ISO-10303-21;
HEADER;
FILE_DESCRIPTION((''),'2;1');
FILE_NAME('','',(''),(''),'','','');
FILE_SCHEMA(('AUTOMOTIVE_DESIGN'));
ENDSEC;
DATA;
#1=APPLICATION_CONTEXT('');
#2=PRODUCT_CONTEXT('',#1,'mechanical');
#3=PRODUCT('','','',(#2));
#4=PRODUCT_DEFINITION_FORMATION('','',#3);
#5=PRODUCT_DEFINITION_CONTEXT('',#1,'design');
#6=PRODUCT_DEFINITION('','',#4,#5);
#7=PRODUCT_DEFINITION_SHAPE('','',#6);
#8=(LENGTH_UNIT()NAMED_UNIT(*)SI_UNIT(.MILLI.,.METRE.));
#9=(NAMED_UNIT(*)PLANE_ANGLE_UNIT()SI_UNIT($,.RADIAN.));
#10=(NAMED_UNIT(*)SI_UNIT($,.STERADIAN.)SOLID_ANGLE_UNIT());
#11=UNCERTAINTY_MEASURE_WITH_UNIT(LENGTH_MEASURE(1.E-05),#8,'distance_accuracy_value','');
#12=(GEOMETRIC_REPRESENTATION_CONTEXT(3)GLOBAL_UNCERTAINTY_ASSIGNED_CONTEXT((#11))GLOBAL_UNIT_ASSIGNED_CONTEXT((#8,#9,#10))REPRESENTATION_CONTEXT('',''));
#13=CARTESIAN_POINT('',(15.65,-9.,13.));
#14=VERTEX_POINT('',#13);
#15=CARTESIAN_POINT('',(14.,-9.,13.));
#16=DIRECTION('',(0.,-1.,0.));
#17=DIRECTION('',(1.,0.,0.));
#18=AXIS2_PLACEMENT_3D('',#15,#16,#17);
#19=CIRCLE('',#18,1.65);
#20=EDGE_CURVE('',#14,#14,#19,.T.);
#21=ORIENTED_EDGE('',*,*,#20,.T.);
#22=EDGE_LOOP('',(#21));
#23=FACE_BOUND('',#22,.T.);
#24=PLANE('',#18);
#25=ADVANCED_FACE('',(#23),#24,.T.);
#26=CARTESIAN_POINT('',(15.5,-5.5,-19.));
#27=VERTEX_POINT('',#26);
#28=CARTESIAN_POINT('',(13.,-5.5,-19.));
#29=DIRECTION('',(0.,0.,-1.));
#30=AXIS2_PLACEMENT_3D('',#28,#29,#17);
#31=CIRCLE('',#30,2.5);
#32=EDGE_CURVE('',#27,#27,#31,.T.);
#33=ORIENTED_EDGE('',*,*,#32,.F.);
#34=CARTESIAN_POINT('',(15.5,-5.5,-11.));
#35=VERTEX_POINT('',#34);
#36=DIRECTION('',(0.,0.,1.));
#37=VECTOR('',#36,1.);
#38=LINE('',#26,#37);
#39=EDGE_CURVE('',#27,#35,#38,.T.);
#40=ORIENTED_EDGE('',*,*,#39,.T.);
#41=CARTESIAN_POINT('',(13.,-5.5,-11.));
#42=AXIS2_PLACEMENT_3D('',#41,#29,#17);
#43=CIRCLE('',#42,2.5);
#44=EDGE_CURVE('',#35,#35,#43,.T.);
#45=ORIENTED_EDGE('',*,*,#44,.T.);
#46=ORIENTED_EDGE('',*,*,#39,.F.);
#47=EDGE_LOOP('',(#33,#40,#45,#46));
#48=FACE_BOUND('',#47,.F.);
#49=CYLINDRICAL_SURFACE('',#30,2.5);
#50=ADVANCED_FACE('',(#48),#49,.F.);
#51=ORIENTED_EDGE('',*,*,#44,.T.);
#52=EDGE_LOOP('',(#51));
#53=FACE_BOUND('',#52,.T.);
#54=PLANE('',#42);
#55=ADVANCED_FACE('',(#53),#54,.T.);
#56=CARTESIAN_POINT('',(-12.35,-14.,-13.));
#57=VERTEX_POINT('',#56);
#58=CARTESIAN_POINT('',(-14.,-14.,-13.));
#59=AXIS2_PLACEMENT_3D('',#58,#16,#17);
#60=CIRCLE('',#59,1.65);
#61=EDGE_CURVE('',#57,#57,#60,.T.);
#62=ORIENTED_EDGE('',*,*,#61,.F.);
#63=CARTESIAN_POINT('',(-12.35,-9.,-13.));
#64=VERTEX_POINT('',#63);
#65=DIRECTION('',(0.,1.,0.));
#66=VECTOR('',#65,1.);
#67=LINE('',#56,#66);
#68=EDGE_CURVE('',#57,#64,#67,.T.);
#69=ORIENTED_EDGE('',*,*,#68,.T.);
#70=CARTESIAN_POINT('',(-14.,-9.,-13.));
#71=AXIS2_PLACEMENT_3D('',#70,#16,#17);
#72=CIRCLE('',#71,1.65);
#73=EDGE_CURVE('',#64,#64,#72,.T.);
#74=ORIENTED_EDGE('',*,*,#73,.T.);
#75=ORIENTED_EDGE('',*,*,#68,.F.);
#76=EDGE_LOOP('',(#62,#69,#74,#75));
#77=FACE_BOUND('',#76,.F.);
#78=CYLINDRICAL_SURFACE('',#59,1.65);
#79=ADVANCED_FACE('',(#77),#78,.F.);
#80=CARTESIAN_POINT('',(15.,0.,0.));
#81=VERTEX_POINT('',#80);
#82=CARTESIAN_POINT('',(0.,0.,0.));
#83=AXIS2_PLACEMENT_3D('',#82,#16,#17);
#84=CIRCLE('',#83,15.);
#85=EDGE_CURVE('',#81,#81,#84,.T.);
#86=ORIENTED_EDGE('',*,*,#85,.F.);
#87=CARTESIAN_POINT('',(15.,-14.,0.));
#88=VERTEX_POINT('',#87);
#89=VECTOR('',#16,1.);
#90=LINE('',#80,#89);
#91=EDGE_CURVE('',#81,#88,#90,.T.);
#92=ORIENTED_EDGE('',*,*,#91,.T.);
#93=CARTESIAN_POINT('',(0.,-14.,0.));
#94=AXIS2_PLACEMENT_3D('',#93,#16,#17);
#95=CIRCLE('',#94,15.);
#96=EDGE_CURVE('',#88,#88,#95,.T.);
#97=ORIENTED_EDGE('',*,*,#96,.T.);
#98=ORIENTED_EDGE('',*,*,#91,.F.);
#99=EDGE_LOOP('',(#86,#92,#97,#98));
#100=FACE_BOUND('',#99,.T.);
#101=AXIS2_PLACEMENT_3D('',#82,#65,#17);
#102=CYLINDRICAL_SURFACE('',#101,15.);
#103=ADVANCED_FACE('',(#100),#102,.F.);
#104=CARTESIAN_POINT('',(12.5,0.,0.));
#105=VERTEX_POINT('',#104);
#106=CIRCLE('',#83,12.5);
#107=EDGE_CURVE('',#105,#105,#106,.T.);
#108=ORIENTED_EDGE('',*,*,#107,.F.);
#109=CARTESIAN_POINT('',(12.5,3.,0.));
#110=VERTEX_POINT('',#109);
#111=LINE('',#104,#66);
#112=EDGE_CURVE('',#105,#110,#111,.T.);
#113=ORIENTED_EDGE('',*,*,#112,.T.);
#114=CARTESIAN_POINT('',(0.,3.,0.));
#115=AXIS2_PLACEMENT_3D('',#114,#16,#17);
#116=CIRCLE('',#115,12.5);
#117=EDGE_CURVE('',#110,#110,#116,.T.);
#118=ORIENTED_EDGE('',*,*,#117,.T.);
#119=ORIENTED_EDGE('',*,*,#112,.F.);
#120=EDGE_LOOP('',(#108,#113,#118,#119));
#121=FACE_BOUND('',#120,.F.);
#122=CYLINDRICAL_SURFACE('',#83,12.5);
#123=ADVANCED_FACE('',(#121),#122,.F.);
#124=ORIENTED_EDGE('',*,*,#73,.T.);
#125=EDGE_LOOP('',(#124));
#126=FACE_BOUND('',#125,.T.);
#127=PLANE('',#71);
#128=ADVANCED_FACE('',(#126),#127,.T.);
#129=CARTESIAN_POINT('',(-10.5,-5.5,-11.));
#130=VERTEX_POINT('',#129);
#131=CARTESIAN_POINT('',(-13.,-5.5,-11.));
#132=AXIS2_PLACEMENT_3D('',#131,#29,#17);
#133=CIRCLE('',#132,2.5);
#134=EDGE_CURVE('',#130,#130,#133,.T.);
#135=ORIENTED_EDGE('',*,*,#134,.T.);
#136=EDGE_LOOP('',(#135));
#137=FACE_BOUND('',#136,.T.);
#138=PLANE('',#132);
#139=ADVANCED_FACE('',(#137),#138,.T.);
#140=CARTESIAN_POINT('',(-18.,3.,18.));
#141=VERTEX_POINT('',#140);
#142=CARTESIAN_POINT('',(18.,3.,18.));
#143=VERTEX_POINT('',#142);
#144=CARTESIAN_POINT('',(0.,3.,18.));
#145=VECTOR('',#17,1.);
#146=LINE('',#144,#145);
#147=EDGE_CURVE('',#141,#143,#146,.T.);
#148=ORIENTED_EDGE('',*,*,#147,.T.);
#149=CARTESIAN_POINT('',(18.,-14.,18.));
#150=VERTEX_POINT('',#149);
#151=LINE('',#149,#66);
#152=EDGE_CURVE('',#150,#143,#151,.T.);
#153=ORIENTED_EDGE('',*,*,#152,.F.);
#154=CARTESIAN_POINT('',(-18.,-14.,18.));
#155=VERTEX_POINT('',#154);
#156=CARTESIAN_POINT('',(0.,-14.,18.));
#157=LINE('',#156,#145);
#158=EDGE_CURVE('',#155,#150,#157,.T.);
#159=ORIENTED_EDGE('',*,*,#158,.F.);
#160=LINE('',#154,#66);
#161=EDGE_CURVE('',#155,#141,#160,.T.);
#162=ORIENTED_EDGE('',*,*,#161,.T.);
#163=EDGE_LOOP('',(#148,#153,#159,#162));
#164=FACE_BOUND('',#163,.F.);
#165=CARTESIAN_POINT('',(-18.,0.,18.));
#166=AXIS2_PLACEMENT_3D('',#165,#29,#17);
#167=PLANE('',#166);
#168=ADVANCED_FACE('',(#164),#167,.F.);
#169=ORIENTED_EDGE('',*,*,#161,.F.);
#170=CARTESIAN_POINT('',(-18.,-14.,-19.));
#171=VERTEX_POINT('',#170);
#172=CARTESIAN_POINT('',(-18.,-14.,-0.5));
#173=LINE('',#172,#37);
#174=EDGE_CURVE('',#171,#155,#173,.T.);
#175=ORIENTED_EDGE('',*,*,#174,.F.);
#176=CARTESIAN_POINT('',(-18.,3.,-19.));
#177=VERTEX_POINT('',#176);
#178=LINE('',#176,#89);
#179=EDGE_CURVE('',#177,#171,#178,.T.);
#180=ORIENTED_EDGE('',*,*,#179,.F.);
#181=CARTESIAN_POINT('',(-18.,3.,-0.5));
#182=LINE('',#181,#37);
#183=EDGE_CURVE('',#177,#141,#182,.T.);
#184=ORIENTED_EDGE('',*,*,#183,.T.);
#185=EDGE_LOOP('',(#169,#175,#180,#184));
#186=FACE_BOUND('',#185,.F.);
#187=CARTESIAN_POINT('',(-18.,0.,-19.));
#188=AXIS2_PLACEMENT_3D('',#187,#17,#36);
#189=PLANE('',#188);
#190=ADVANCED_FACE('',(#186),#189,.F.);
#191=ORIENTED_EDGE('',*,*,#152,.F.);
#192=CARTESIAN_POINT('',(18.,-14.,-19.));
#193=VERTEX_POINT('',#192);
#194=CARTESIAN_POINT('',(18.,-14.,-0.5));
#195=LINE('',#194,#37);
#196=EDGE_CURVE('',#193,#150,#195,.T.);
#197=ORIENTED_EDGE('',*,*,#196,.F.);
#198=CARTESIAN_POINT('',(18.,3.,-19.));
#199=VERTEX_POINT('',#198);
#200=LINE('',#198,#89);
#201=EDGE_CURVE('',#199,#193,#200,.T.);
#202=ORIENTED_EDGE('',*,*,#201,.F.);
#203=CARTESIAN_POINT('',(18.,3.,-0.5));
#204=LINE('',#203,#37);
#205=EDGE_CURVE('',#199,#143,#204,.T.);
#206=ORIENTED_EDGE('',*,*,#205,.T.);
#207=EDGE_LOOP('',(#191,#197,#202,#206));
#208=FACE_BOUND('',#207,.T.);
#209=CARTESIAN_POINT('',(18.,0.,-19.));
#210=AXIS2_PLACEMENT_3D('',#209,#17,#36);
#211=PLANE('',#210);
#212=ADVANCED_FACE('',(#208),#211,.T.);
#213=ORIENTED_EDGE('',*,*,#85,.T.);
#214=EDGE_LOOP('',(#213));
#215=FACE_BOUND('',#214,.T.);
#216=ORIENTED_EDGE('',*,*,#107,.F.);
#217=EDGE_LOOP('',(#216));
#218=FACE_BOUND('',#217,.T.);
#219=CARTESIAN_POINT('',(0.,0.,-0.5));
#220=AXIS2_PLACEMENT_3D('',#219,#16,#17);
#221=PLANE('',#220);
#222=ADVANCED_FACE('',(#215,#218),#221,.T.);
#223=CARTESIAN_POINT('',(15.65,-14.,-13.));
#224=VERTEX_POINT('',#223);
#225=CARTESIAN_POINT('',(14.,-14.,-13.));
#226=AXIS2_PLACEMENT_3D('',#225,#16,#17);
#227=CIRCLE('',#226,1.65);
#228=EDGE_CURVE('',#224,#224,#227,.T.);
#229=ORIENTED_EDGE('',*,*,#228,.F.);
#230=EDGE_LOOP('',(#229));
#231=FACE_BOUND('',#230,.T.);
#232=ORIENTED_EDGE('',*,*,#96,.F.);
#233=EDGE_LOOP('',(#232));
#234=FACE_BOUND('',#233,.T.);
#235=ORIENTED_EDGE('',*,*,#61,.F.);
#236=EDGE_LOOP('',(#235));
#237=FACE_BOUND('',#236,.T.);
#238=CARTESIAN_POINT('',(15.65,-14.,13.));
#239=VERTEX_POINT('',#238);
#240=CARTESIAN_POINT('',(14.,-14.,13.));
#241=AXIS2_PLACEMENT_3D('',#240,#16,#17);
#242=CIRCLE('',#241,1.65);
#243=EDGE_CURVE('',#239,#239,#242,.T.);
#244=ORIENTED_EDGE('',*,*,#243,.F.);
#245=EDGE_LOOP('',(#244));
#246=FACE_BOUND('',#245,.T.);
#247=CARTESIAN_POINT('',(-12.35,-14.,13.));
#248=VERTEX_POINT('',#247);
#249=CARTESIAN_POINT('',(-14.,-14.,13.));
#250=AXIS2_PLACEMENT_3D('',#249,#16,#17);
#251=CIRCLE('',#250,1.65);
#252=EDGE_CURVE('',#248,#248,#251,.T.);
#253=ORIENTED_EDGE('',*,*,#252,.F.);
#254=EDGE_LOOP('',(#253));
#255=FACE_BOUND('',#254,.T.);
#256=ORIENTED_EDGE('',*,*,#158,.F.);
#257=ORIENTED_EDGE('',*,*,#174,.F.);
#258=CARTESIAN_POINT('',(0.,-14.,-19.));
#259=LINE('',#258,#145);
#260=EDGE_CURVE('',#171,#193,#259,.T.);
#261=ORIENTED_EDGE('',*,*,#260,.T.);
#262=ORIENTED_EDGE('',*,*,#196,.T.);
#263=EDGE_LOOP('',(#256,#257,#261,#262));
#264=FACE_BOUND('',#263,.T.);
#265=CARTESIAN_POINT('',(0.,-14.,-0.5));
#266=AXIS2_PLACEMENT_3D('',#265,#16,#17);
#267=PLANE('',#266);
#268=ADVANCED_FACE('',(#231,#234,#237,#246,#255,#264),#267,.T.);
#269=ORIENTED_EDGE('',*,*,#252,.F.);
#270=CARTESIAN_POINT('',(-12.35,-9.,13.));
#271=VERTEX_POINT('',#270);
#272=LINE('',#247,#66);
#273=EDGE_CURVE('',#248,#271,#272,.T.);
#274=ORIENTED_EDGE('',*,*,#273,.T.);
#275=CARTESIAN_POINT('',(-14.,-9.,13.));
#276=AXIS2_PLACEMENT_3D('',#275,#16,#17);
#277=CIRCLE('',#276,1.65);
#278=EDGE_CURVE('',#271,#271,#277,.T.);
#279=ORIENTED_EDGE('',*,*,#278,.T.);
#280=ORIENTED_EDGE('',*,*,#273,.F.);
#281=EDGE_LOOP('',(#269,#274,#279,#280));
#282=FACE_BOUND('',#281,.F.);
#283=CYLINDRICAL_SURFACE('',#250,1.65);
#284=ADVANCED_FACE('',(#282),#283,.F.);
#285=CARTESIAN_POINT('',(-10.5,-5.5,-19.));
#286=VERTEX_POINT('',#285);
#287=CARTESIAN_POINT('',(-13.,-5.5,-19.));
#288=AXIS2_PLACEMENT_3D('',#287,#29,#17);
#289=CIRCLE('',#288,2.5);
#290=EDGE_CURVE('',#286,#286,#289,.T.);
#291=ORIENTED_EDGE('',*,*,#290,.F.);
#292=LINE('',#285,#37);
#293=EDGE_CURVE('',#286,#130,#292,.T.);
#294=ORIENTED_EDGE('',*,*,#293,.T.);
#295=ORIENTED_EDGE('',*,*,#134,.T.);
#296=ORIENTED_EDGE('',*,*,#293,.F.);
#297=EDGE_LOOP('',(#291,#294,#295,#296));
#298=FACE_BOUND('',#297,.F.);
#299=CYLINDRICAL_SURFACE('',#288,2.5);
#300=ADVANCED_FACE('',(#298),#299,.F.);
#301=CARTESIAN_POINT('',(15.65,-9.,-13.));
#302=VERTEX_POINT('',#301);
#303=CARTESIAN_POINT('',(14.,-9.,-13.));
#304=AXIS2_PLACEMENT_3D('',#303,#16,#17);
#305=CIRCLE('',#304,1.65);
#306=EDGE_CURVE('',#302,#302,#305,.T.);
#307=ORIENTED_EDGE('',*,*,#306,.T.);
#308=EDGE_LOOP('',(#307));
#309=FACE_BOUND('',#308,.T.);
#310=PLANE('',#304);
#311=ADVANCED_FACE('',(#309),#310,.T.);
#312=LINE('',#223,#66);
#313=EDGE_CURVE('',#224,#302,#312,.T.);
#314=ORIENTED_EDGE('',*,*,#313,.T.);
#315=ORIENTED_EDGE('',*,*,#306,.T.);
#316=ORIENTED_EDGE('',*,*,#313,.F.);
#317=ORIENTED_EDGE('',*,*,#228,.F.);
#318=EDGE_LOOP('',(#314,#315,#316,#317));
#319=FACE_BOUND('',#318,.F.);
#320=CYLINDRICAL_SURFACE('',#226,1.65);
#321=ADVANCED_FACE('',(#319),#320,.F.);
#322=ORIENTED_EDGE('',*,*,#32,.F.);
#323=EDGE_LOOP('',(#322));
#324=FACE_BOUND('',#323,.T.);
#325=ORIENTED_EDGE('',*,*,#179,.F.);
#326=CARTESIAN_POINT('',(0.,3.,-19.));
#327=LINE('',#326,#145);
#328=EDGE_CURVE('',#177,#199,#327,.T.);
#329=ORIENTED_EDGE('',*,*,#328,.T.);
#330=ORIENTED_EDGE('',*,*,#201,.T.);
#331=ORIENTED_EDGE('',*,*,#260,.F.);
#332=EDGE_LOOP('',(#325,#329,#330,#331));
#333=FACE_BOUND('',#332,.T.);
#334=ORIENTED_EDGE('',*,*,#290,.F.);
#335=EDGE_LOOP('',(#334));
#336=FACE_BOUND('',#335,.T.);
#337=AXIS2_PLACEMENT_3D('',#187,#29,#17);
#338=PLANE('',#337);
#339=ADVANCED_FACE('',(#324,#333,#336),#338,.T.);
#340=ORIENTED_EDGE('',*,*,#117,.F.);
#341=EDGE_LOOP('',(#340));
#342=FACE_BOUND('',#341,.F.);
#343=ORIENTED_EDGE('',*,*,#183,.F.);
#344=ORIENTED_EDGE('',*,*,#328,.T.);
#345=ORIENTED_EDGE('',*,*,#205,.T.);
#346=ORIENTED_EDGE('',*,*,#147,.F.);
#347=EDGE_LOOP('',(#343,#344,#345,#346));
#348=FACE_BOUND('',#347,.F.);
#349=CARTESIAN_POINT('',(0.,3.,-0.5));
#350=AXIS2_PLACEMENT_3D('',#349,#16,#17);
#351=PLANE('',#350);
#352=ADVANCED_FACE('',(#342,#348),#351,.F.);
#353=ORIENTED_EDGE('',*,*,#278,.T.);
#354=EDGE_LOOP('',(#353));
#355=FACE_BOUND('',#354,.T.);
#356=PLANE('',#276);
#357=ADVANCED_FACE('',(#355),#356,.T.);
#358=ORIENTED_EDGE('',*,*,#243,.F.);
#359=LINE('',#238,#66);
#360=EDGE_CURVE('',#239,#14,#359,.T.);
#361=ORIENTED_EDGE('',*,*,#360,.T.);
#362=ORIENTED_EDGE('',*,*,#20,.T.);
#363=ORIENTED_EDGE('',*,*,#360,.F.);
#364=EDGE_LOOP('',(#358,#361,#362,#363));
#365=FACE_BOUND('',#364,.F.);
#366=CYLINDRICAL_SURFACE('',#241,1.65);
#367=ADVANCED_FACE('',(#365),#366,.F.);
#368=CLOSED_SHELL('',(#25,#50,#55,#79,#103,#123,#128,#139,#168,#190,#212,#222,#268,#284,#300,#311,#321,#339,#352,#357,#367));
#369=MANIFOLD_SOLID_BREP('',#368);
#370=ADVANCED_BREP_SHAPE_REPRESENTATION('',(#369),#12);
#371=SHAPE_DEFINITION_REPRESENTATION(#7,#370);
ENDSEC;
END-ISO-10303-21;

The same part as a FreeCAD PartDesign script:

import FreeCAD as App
import Part
import Sketcher


def add_polygon(sketch, points):
    """Adds a closed chain of lines whose ends are joined by coincident constraints."""
    first, n = sketch.GeometryCount, len(points)
    for a, b in zip(points, points[1:] + points[:1]):
        sketch.addGeometry(Part.LineSegment(App.Vector(*a, 0), App.Vector(*b, 0)), False)
    for i in range(n):
        sketch.addConstraint(Sketcher.Constraint("Coincident", first + i, 2, first + (i + 1) % n, 1))

doc = App.newDocument("Part")
body = doc.addObject("PartDesign::Body", "Body")

# Sketch on XZ plane
sketch1 = body.newObject("Sketcher::SketchObject", "Sketch")
sketch1.AttachmentSupport = (doc.getObject("XZ_Plane"), [""])
sketch1.MapMode = "FlatFace"
add_polygon(sketch1, [(-18, 18), (-18, -19), (18, -19), (18, 18)])  # lines 0-3
sketch1.addGeometry(Part.Circle(App.Vector(0, 0, 0), App.Vector(0, 0, 1), 15), False)  # 4
sketch1.addConstraint([
    Sketcher.Constraint("Vertical", 0),
    Sketcher.Constraint("Horizontal", 1),
    Sketcher.Constraint("Vertical", 2),
    Sketcher.Constraint("Horizontal", 3),
    Sketcher.Constraint("Coincident", 4, 3, -1, 1),
    Sketcher.Constraint("Diameter", 4, 30.0),
    Sketcher.Constraint("DistanceX", 1, 1, 1, 2, 36.0),
    Sketcher.Constraint("DistanceY", 0, 2, 0, 1, 37.0),
    Sketcher.Constraint("DistanceX", 0, 2, -1, 1, 18.0),
    Sketcher.Constraint("DistanceY", 0, 2, -1, 1, 19.0),
])
pad1 = body.newObject("PartDesign::Pad", "Pad")
pad1.Profile = sketch1
pad1.Length = 14

# Sketch on XZ plane
sketch2 = body.newObject("Sketcher::SketchObject", "Sketch001")
sketch2.AttachmentSupport = (doc.getObject("XZ_Plane"), [""])
sketch2.MapMode = "FlatFace"
add_polygon(sketch2, [(-18, 18), (-18, -19), (18, -19), (18, 18)])  # lines 0-3
sketch2.addGeometry(Part.Circle(App.Vector(0, 0, 0), App.Vector(0, 0, 1), 12.5), False)  # 4
sketch2.addConstraint([
    Sketcher.Constraint("Vertical", 0),
    Sketcher.Constraint("Horizontal", 1),
    Sketcher.Constraint("Vertical", 2),
    Sketcher.Constraint("Horizontal", 3),
    Sketcher.Constraint("Coincident", 4, 3, -1, 1),
    Sketcher.Constraint("Diameter", 4, 25.0),
    Sketcher.Constraint("DistanceX", 1, 1, 1, 2, 36.0),
    Sketcher.Constraint("DistanceY", 0, 2, 0, 1, 37.0),
    Sketcher.Constraint("DistanceX", 0, 2, -1, 1, 18.0),
    Sketcher.Constraint("DistanceY", 0, 2, -1, 1, 19.0),
])
pad2 = body.newObject("PartDesign::Pad", "Pad001")
pad2.Profile = sketch2
pad2.Length = 3
pad2.Reversed = True

# Sketch on XZ plane
sketch3 = body.newObject("Sketcher::SketchObject", "Sketch002")
sketch3.AttachmentSupport = (doc.getObject("XZ_Plane"), [""])
sketch3.MapMode = "FlatFace"
sketch3.AttachmentOffset = App.Placement(App.Vector(0, 0, 14), App.Rotation())
sketch3.addGeometry([
    Part.Circle(App.Vector(-14, 13, 0), App.Vector(0, 0, 1), 1.65),
    Part.Circle(App.Vector(-14, -13, 0), App.Vector(0, 0, 1), 1.65),
    Part.Circle(App.Vector(14, -13, 0), App.Vector(0, 0, 1), 1.65),
    Part.Circle(App.Vector(14, 13, 0), App.Vector(0, 0, 1), 1.65),
], False)
sketch3.addConstraint([
    Sketcher.Constraint("Equal", 0, 1),
    Sketcher.Constraint("Equal", 1, 2),
    Sketcher.Constraint("Equal", 2, 3),
    Sketcher.Constraint("Symmetric", 0, 3, 2, 3, -1, 1),
    Sketcher.Constraint("Symmetric", 1, 3, 3, 3, -1, 1),
    Sketcher.Constraint("Symmetric", 1, 3, 2, 3, -2),
    Sketcher.Constraint("Diameter", 0, 3.3),
    Sketcher.Constraint("DistanceX", 0, 3, -1, 1, 14.0),
    Sketcher.Constraint("DistanceY", -1, 1, 0, 3, 13.0),
])
pocket1 = body.newObject("PartDesign::Pocket", "Pocket")
pocket1.Profile = sketch3
pocket1.Length = 5

# Sketch on XY plane
sketch4 = body.newObject("Sketcher::SketchObject", "Sketch003")
sketch4.AttachmentSupport = (doc.getObject("XY_Plane"), [""])
sketch4.MapMode = "FlatFace"
sketch4.AttachmentOffset = App.Placement(App.Vector(0, 0, -19), App.Rotation())
sketch4.addGeometry([
    Part.Circle(App.Vector(-13, -5.5, 0), App.Vector(0, 0, 1), 2.5),
    Part.Circle(App.Vector(13, -5.5, 0), App.Vector(0, 0, 1), 2.5),
], False)
sketch4.addConstraint([
    Sketcher.Constraint("Equal", 0, 1),
    Sketcher.Constraint("Symmetric", 0, 3, 1, 3, -2),
    Sketcher.Constraint("Diameter", 0, 5.0),
    Sketcher.Constraint("DistanceX", 0, 3, -1, 1, 13.0),
    Sketcher.Constraint("DistanceY", 0, 3, -1, 1, 5.5),
])
pocket2 = body.newObject("PartDesign::Pocket", "Pocket001")
pocket2.Profile = sketch4
pocket2.Length = 8
pocket2.Reversed = True

doc.recompute()
